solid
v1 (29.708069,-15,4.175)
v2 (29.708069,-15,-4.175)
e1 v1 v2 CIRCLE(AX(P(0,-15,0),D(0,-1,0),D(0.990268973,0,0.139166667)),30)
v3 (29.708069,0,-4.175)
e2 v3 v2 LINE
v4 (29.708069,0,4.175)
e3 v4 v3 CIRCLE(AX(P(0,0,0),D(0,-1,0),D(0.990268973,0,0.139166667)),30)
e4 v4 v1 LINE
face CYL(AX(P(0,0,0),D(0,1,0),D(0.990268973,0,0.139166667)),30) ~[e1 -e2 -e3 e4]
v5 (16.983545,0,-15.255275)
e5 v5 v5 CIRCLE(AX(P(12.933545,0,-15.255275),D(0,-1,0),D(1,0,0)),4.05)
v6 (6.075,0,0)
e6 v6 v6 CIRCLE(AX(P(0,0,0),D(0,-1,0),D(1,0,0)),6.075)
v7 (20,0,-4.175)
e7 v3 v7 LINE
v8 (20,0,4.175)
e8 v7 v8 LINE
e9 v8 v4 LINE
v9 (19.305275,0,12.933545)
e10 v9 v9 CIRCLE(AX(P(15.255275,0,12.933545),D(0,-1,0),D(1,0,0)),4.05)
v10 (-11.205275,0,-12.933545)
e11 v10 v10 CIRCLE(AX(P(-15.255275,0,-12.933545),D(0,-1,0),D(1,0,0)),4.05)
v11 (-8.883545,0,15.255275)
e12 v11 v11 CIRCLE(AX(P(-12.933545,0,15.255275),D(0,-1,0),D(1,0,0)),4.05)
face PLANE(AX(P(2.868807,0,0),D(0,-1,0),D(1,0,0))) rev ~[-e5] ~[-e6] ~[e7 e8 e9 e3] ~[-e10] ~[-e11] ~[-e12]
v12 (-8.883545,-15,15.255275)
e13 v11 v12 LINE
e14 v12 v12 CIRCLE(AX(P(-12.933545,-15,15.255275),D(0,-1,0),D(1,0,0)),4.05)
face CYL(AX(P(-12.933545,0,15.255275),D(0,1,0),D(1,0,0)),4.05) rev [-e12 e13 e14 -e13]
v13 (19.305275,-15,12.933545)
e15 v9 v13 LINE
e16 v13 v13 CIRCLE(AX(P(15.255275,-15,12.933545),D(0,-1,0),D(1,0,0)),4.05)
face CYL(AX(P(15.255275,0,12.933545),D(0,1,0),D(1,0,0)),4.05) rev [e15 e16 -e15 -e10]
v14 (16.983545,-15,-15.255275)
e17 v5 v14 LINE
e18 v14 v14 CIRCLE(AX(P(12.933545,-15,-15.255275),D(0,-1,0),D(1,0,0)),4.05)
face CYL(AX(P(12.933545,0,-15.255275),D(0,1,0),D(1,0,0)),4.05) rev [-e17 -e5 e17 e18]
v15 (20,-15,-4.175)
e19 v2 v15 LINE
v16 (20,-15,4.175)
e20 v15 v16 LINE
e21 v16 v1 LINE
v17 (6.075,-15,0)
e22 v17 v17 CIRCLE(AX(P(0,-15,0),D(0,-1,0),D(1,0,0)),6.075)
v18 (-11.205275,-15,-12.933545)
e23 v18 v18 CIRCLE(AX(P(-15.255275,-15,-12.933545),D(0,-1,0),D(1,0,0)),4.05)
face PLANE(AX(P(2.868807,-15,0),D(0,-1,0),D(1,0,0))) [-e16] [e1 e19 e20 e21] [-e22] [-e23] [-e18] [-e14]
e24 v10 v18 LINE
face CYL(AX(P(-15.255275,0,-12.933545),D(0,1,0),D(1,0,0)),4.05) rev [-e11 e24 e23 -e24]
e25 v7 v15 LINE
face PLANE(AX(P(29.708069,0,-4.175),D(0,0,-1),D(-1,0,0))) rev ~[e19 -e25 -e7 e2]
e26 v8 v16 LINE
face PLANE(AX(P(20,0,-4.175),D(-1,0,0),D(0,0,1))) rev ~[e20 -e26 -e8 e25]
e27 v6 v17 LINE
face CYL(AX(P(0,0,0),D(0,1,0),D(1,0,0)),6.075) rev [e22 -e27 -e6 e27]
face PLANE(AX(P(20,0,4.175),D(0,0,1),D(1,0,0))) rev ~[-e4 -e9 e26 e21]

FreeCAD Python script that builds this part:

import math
import FreeCAD as App
import Part
import Sketcher
Q = App.Units.Quantity

doc = App.newDocument("Part")
body = doc.addObject("PartDesign::Body", "Body")

# Sketch on XZ plane
sketch1 = body.newObject("Sketcher::SketchObject", "Sketch")
sketch1.AttachmentSupport = (doc.getObject("XZ_Plane"), [""])
sketch1.MapMode = "FlatFace"
sketch1.addGeometry([
    Part.LineSegment(App.Vector(20, 4.2, 0), App.Vector(29.7, 4.2, 0)),  # 0
    Part.ArcOfCircle(Part.Circle(App.Vector(0, 0, 0), App.Vector(0, 0, 1), 30), math.radians(8), math.radians(352)),  # 1
    Part.LineSegment(App.Vector(29.7, -4.2, 0), App.Vector(20, -4.2, 0)),  # 2
    Part.LineSegment(App.Vector(20, -4.2, 0), App.Vector(20, 4.2, 0)),  # 3
    Part.Circle(App.Vector(-15.3, -12.9, 0), App.Vector(0, 0, 1), 4),  # 4
    Part.Circle(App.Vector(12.9, -15.3, 0), App.Vector(0, 0, 1), 4),  # 5
    Part.Circle(App.Vector(-12.9, 15.3, 0), App.Vector(0, 0, 1), 4),  # 6
    Part.Circle(App.Vector(0, 0, 0), App.Vector(0, 0, 1), 6.1),  # 7
    Part.Circle(App.Vector(15.3, 12.9, 0), App.Vector(0, 0, 1), 4),  # 8
], False)
sketch1.addConstraint([
    Sketcher.Constraint("Coincident", 0, 2, 1, 1),
    Sketcher.Constraint("Coincident", 1, 2, 2, 1),
    Sketcher.Constraint("Coincident", 2, 2, 3, 1),
    Sketcher.Constraint("Coincident", 3, 2, 0, 1),
    Sketcher.Constraint("Horizontal", 0),
    Sketcher.Constraint("Horizontal", 2),
    Sketcher.Constraint("Vertical", 3),
    Sketcher.Constraint("Coincident", 1, 3, -1, 1),
    Sketcher.Constraint("Coincident", 7, 3, -1, 1),
    Sketcher.Constraint("Equal", 4, 5),
    Sketcher.Constraint("Equal", 5, 6),
    Sketcher.Constraint("Equal", 6, 8),
    Sketcher.Constraint("Symmetric", 5, 3, 6, 3, -1, 1),
    Sketcher.Constraint("Symmetric", 4, 3, 8, 3, -1, 1),
    Sketcher.Constraint("Vertical", 0, 2, 1, 2),
    Sketcher.Constraint("Radius", 1, Q("30 mm")),
    Sketcher.Constraint("Diameter", 4, Q("8.1 mm")),
    Sketcher.Constraint("Diameter", 7, Q("12.15 mm")),
    Sketcher.Constraint("DistanceX", -1, 1, 2, 2, Q("20 mm")),
    Sketcher.Constraint("DistanceY", 3, 1, 3, 2, Q("8.35 mm")),
    Sketcher.Constraint("DistanceX", 4, 3, 5, 3, Q("28.18882 mm")),
    Sketcher.Constraint("DistanceY", 5, 3, 4, 3, Q("2.32173 mm")),
    Sketcher.Constraint("DistanceX", 4, 3, 6, 3, Q("2.32173 mm")),
    Sketcher.Constraint("DistanceY", 4, 3, 6, 3, Q("28.18882 mm")),
])
pad1 = body.newObject("PartDesign::Pad", "Pad")
pad1.Profile = sketch1
pad1.Length = 15

doc.recompute()
